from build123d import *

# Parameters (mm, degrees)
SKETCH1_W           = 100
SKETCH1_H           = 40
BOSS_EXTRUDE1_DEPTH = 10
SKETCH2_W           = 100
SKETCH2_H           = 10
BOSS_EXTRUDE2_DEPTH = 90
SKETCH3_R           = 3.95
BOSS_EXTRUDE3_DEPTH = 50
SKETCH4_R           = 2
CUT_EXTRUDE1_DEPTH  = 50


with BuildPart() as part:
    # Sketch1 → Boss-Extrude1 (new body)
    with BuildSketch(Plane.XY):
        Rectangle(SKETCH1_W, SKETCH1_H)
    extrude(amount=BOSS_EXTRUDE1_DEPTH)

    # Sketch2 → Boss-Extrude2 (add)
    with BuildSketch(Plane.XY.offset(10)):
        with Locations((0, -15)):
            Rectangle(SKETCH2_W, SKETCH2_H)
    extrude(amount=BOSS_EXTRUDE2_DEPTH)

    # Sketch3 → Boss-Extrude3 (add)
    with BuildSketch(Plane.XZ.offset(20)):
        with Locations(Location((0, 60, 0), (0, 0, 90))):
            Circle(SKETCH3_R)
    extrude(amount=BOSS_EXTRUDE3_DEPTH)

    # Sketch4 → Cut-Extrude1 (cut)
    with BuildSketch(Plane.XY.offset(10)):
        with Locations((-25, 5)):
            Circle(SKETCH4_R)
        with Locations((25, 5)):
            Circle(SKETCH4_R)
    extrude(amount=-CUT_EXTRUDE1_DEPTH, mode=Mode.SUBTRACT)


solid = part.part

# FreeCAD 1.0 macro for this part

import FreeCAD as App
import Part
import Sketcher
from FreeCAD import Vector
Q = App.Units.Quantity


def add_polygon(sketch, points):
    """Adds a closed chain of lines whose ends are joined by coincident constraints."""
    first, n = sketch.GeometryCount, len(points)
    for a, b in zip(points, points[1:] + points[:1]):
        sketch.addGeometry(Part.LineSegment(App.Vector(*a, 0), App.Vector(*b, 0)), False)
    for i in range(n):
        sketch.addConstraint(Sketcher.Constraint("Coincident", first + i, 2, first + (i + 1) % n, 1))

doc = App.newDocument("Part")
body = doc.addObject("PartDesign::Body", "Body")

# Sketch on XY plane
sketch1 = body.newObject("Sketcher::SketchObject", "Sketch")
sketch1.AttachmentSupport = (doc.getObject("XY_Plane"), [""])
sketch1.MapMode = "FlatFace"
add_polygon(sketch1, [(-50, 20), (-50, -20), (50, -20), (50, 20)])  # lines 0-3
sketch1.addConstraint([
    Sketcher.Constraint("Vertical", 0),
    Sketcher.Constraint("Horizontal", 1),
    Sketcher.Constraint("Vertical", 2),
    Sketcher.Constraint("Horizontal", 3),
    Sketcher.Constraint("Symmetric", 0, 2, 2, 2, -1, 1),
    Sketcher.Constraint("DistanceX", 1, 1, 1, 2, Q("100 mm")),
    Sketcher.Constraint("DistanceY", 0, 2, 0, 1, Q("40 mm")),
])
pad1 = body.newObject("PartDesign::Pad", "Pad")
pad1.Profile = sketch1
pad1.Length = 10

# Sketch on XY plane
sketch2 = body.newObject("Sketcher::SketchObject", "Sketch001")
sketch2.AttachmentSupport = (doc.getObject("XY_Plane"), [""])
sketch2.MapMode = "FlatFace"
sketch2.AttachmentOffset = App.Placement(Vector(0, 0, 10), App.Rotation())
add_polygon(sketch2, [(-50, -10), (-50, -20), (50, -20), (50, -10)])  # lines 0-3
sketch2.addConstraint([
    Sketcher.Constraint("Vertical", 0),
    Sketcher.Constraint("Horizontal", 1),
    Sketcher.Constraint("Vertical", 2),
    Sketcher.Constraint("Horizontal", 3),
    Sketcher.Constraint("DistanceX", 1, 1, 1, 2, Q("100 mm")),
    Sketcher.Constraint("DistanceY", 0, 2, 0, 1, Q("10 mm")),
    Sketcher.Constraint("DistanceX", 0, 2, -1, 1, Q("50 mm")),
    Sketcher.Constraint("DistanceY", 0, 2, -1, 1, Q("20 mm")),
])
pad2 = body.newObject("PartDesign::Pad", "Pad001")
pad2.Profile = sketch2
pad2.Length = 90

# Sketch on XZ plane
sketch3 = body.newObject("Sketcher::SketchObject", "Sketch002")
sketch3.AttachmentSupport = (doc.getObject("XZ_Plane"), [""])
sketch3.MapMode = "FlatFace"
sketch3.AttachmentOffset = App.Placement(Vector(0, 0, 20), App.Rotation())
sketch3.addGeometry(Part.Circle(Vector(0, 60, 0), Vector(0, 0, 1), 4), False)
sketch3.addConstraint([
    Sketcher.Constraint("PointOnObject", 0, 3, -2),
    Sketcher.Constraint("Diameter", 0, Q("7.9 mm")),
    Sketcher.Constraint("DistanceY", -1, 1, 0, 3, Q("60 mm")),
])
pad3 = body.newObject("PartDesign::Pad", "Pad002")
pad3.Profile = sketch3
pad3.Length = 50

# Sketch on XY plane
sketch4 = body.newObject("Sketcher::SketchObject", "Sketch003")
sketch4.AttachmentSupport = (doc.getObject("XY_Plane"), [""])
sketch4.MapMode = "FlatFace"
sketch4.AttachmentOffset = App.Placement(Vector(0, 0, 10), App.Rotation())
sketch4.addGeometry([
    Part.Circle(Vector(-25, 5, 0), Vector(0, 0, 1), 2),
    Part.Circle(Vector(25, 5, 0), Vector(0, 0, 1), 2),
], False)
sketch4.addConstraint([
    Sketcher.Constraint("Equal", 0, 1),
    Sketcher.Constraint("Symmetric", 0, 3, 1, 3, -2),
    Sketcher.Constraint("Diameter", 0, Q("4 mm")),
    Sketcher.Constraint("DistanceX", 0, 3, -1, 1, Q("25 mm")),
    Sketcher.Constraint("DistanceY", -1, 1, 0, 3, Q("5 mm")),
])
pocket1 = body.newObject("PartDesign::Pocket", "Pocket")
pocket1.Profile = sketch4
pocket1.Length = 50

doc.recompute()
